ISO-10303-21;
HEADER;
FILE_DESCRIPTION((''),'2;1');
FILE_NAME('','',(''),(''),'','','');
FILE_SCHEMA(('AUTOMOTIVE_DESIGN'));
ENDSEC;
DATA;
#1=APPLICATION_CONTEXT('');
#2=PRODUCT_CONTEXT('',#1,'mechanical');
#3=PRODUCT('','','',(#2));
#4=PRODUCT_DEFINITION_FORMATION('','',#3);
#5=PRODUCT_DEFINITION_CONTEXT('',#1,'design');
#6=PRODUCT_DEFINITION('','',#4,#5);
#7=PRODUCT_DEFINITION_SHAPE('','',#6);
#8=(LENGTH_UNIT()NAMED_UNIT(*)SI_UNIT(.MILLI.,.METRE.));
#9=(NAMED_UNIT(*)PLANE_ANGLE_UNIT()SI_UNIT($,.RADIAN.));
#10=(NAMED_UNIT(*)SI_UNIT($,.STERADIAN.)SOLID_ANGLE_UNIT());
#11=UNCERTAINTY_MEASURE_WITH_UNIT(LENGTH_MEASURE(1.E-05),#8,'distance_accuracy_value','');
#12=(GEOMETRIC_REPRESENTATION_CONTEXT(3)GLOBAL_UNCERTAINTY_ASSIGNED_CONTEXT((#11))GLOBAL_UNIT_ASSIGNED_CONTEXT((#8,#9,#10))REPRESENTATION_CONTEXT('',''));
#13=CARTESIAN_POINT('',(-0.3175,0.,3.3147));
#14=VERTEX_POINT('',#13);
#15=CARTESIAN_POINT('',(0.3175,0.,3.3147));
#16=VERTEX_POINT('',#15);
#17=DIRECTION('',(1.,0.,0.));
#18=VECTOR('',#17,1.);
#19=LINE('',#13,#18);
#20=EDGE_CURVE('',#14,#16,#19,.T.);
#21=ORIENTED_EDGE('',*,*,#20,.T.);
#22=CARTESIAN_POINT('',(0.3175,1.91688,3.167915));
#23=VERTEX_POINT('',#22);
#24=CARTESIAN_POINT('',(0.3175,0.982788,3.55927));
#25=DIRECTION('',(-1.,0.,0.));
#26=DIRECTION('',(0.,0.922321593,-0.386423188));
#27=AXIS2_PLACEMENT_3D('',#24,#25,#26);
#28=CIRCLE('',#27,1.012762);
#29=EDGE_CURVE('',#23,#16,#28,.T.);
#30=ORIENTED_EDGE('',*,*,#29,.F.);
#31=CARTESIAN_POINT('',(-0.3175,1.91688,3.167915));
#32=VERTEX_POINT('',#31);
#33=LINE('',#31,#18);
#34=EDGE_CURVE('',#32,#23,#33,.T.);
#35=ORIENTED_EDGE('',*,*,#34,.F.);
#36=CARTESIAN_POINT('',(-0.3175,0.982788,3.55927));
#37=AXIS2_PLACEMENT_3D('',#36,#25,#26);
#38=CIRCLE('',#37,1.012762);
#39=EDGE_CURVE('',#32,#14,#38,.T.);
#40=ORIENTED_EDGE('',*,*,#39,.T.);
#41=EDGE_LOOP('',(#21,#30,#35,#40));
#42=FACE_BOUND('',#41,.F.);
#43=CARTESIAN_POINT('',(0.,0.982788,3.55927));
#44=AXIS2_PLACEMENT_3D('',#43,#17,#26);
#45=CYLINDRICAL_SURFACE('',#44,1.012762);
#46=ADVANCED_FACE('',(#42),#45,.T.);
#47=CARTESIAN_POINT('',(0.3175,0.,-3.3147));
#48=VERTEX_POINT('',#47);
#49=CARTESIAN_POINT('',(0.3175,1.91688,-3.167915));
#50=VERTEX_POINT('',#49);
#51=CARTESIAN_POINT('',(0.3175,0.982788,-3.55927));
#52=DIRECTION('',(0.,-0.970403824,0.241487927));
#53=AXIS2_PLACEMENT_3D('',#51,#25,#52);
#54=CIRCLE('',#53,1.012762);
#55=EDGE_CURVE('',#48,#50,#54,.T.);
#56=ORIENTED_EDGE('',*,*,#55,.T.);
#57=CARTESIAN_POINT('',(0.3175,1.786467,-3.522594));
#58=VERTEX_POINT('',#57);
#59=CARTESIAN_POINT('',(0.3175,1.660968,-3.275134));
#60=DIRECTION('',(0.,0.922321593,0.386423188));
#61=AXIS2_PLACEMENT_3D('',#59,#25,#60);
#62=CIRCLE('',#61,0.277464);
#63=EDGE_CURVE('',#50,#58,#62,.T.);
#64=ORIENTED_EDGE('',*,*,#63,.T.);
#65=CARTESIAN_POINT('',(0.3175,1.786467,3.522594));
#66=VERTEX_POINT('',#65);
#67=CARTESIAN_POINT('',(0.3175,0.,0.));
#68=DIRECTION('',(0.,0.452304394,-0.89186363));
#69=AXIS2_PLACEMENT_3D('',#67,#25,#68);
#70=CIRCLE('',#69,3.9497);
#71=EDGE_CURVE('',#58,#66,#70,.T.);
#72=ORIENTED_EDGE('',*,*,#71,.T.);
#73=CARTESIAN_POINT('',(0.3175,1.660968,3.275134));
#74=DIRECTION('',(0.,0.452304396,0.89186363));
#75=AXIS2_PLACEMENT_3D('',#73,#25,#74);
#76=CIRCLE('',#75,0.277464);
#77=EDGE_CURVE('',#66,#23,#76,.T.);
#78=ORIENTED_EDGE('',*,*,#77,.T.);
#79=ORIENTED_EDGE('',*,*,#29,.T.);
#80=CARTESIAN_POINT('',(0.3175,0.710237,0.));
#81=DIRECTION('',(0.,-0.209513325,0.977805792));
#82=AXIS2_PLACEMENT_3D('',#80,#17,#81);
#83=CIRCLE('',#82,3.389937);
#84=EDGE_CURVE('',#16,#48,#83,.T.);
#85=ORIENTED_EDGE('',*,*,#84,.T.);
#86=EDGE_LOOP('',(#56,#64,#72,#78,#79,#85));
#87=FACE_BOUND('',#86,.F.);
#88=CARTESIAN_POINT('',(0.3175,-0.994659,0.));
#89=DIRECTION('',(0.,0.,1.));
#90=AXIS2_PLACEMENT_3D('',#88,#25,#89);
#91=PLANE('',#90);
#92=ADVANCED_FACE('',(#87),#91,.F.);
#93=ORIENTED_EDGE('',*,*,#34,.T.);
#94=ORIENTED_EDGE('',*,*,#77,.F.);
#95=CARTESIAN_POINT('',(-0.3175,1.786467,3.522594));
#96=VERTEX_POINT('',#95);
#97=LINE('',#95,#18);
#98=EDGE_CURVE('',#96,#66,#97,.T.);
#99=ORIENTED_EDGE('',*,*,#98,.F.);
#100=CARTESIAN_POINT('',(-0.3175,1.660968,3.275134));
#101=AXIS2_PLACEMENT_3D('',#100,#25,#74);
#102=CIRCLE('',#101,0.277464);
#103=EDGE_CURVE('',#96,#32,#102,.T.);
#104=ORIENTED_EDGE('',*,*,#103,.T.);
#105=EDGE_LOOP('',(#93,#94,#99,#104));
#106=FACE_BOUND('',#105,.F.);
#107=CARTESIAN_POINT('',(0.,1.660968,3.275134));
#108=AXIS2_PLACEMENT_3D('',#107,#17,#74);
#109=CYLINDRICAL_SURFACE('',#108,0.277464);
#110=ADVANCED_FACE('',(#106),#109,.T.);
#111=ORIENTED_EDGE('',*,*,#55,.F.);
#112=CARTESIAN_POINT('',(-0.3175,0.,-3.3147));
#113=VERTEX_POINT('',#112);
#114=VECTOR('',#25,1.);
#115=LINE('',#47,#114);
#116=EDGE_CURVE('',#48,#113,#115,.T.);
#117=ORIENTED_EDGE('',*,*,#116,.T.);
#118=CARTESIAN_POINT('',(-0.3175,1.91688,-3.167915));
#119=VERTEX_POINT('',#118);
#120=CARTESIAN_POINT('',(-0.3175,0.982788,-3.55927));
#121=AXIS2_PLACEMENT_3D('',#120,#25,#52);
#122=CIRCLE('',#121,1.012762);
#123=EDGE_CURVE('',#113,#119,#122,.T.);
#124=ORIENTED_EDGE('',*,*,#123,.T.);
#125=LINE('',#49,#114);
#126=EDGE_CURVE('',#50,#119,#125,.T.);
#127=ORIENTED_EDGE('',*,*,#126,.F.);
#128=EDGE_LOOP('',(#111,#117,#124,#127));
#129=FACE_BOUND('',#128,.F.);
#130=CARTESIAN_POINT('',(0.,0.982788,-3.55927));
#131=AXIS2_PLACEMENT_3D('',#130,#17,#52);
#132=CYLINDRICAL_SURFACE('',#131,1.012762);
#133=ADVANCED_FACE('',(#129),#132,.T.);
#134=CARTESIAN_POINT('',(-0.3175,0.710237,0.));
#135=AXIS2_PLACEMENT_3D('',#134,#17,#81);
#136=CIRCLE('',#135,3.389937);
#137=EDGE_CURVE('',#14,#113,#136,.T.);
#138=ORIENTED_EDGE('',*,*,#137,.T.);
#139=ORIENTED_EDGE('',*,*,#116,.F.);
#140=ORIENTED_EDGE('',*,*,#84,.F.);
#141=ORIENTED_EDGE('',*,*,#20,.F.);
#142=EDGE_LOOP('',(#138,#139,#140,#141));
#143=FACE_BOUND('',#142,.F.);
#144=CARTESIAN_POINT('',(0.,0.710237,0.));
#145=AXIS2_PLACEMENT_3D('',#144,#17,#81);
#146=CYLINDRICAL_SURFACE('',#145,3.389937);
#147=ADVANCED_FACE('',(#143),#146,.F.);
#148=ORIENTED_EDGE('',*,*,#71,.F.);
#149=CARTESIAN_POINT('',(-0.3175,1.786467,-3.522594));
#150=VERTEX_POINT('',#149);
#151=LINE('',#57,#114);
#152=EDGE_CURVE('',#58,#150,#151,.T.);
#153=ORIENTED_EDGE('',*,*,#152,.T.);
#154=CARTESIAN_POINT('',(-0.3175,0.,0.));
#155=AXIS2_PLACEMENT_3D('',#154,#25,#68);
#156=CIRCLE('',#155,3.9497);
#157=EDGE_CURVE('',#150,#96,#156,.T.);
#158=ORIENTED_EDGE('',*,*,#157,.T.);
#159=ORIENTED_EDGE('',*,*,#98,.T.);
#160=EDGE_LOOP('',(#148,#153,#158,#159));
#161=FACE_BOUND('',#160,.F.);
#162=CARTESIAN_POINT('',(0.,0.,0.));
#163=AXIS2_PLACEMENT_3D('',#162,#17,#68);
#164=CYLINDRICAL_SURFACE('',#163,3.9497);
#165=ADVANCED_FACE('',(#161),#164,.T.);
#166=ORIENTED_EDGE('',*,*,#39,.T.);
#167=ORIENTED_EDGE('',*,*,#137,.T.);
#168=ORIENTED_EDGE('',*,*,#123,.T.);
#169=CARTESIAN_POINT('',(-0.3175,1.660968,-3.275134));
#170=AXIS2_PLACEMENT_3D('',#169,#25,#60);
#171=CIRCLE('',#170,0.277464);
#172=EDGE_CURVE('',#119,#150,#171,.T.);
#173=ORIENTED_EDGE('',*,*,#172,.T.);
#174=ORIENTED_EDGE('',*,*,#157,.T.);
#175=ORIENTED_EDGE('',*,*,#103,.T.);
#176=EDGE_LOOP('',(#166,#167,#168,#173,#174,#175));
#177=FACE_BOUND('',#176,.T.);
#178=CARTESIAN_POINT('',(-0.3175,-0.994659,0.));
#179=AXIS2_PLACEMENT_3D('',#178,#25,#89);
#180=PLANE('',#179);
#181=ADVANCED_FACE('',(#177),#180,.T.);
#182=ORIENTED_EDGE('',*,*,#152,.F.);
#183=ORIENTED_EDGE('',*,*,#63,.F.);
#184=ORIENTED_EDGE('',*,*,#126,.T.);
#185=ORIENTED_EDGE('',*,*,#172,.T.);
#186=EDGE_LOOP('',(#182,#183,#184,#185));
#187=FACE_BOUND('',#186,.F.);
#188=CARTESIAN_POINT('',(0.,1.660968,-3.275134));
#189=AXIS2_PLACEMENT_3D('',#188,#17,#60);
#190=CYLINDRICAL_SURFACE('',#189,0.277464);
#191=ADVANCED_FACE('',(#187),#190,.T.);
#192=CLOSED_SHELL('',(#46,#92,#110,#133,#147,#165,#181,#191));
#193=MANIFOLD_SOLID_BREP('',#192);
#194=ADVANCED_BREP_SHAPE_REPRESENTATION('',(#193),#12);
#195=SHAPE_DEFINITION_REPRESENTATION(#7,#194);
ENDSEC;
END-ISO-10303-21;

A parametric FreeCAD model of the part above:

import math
import FreeCAD as App
import Part
import Sketcher
Q = App.Units.Quantity

doc = App.newDocument("Part")
body = doc.addObject("PartDesign::Body", "Body")

# Sketch on YZ plane
sketch1 = doc.addObject("Sketcher::SketchObject", "Sketch")
body.addObject(sketch1)
sketch1.AttachmentSupport = (doc.YZ_Plane, [""])
sketch1.MapMode = "FlatFace"
sketch1.addGeometry([
    Part.ArcOfCircle(Part.Circle(App.Vector(0.71, 0, 0), App.Vector(0, 0, 1), 3.39), math.radians(102), math.radians(258)),  # 0
    Part.ArcOfCircle(Part.Circle(App.Vector(0.98, 3.56, 0), App.Vector(0, 0, 1), 1.01), math.radians(-166), math.radians(-23)),  # 1
    Part.ArcOfCircle(Part.Circle(App.Vector(1.66, 3.28, 0), App.Vector(0, 0, 1), 0.28), math.radians(-23), math.radians(63)),  # 2
    Part.ArcOfCircle(Part.Circle(App.Vector(0, 0, 0), App.Vector(0, 0, 1), 3.95), math.radians(63), math.radians(297)),  # 3
    Part.ArcOfCircle(Part.Circle(App.Vector(1.66, -3.28, 0), App.Vector(0, 0, 1), 0.28), math.radians(-63), math.radians(23)),  # 4
    Part.ArcOfCircle(Part.Circle(App.Vector(0.98, -3.56, 0), App.Vector(0, 0, 1), 1.01), math.radians(23), math.radians(166)),  # 5
], False)
sketch1.addConstraint([
    Sketcher.Constraint("Coincident", 0, 1, 1, 1),
    Sketcher.Constraint("Tangent", 1, 2, 2, 1),
    Sketcher.Constraint("Tangent", 2, 2, 3, 1),
    Sketcher.Constraint("Tangent", 3, 2, 4, 1),
    Sketcher.Constraint("Tangent", 4, 2, 5, 1),
    Sketcher.Constraint("Coincident", 5, 2, 0, 2),
    Sketcher.Constraint("Coincident", 3, 3, -1, 1),
    Sketcher.Constraint("Equal", 2, 4),
    Sketcher.Constraint("Equal", 1, 5),
    Sketcher.Constraint("Symmetric", 0, 1, 5, 2, -1, 1),
    Sketcher.Constraint("Symmetric", 1, 3, 5, 3, -1),
    Sketcher.Constraint("Radius", 3, Q("0.1555 in")),
    Sketcher.Constraint("Radius", 1, 1.012762),
    Sketcher.Constraint("DistanceY", -1, 1, 0, 1, Q("0.1305 in")),
    Sketcher.Constraint("Radius", 0, 3.389937),
    Sketcher.Constraint("Radius", 2, 0.277464),
    Sketcher.Constraint("DistanceX", 1, 3, 2, 3, Q("0.0267 in")),
])
pad1 = doc.addObject("PartDesign::Pad", "Pad")
body.addObject(pad1)
pad1.Profile = sketch1
pad1.Length = Q("0.025 in")
pad1.Midplane = True

doc.recompute()
